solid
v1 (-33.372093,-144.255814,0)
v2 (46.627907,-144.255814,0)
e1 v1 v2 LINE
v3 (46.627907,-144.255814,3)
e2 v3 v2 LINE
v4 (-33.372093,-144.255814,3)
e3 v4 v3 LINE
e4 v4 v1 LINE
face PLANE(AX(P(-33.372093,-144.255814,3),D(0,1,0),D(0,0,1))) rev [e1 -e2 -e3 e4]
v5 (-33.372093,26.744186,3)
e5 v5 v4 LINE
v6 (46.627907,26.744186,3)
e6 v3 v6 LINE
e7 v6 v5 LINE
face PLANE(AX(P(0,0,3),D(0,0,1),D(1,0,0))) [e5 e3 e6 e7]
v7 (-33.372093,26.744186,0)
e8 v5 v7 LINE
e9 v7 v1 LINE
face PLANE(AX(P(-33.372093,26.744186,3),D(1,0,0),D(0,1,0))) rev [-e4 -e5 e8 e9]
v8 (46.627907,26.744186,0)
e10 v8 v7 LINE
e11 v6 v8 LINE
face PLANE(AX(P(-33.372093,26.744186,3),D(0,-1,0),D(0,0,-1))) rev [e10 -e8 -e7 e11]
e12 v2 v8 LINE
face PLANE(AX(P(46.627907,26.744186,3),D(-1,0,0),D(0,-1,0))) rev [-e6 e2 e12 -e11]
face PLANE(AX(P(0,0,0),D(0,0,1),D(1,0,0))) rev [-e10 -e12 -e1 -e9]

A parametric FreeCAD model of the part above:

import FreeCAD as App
import Part
import Sketcher
from FreeCAD import Vector


def add_polygon(sketch, points):
    """Adds a closed chain of lines whose ends are joined by coincident constraints."""
    first, n = sketch.GeometryCount, len(points)
    for a, b in zip(points, points[1:] + points[:1]):
        sketch.addGeometry(Part.LineSegment(App.Vector(*a, 0), App.Vector(*b, 0)), False)
    for i in range(n):
        sketch.addConstraint(Sketcher.Constraint("Coincident", first + i, 2, first + (i + 1) % n, 1))

doc = App.newDocument("Part")
body = doc.addObject("PartDesign::Body", "Body")

# Sketch on XY plane
sketch1 = body.newObject("Sketcher::SketchObject", "Sketch")
sketch1.AttachmentSupport = (doc.getObject("XY_Plane"), [""])
sketch1.MapMode = "FlatFace"
add_polygon(sketch1, [(-33.372093, 26.744186), (-33.372093, -144.255814), (46.627907, -144.255814), (46.627907, 26.744186)])  # lines 0-3
sketch1.addConstraint([
    Sketcher.Constraint("Vertical", 0),
    Sketcher.Constraint("Horizontal", 1),
    Sketcher.Constraint("Vertical", 2),
    Sketcher.Constraint("Horizontal", 3),
    Sketcher.Constraint("DistanceX", 1, 1, 1, 2, 80.0),
    Sketcher.Constraint("DistanceY", 0, 2, 0, 1, 171.0),
    Sketcher.Constraint("DistanceX", 0, 2, -1, 1, 33.372093),
    Sketcher.Constraint("DistanceY", 0, 2, -1, 1, 144.255814),
])
pad1 = body.newObject("PartDesign::Pad", "Pad")
pad1.Profile = sketch1
pad1.Length = 3

doc.recompute()
